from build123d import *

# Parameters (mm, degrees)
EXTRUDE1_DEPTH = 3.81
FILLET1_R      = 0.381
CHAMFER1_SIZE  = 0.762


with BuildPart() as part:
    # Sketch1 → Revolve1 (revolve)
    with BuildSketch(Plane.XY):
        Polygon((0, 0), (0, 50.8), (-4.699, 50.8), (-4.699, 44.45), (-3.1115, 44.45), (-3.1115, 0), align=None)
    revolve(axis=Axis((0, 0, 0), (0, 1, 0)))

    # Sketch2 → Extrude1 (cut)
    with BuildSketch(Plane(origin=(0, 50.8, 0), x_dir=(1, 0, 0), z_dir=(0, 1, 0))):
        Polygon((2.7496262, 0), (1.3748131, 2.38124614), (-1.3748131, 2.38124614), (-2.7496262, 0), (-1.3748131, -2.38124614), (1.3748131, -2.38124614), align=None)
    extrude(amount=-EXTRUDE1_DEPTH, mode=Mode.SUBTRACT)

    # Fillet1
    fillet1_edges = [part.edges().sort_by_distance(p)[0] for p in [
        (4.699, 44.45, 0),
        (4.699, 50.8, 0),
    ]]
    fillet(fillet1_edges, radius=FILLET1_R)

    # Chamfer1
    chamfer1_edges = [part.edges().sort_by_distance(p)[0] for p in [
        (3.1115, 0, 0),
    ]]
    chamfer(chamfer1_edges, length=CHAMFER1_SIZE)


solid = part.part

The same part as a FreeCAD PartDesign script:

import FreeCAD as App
import Part
import Sketcher
Q = App.Units.Quantity


def edges_at(feature, points):
    """Names of the edges that pass closest to the given points."""
    edges = feature.Shape.Edges
    near = lambda p: min(range(len(edges)), key=lambda i: edges[i].distToShape(Part.Vertex(*p))[0])
    return sorted({f"Edge{near(p) + 1}" for p in points})


def add_polygon(sketch, points):
    """Adds a closed chain of lines whose ends are joined by coincident constraints."""
    first, n = sketch.GeometryCount, len(points)
    for a, b in zip(points, points[1:] + points[:1]):
        sketch.addGeometry(Part.LineSegment(App.Vector(*a, 0), App.Vector(*b, 0)), False)
    for i in range(n):
        sketch.addConstraint(Sketcher.Constraint("Coincident", first + i, 2, first + (i + 1) % n, 1))

doc = App.newDocument("Part")
body = doc.addObject("PartDesign::Body", "Body")

sketch1 = body.newObject("Sketcher::SketchObject", "Sketch")
sketch1.AttachmentSupport = (doc.getObject("XY_Plane"), [""])
sketch1.MapMode = "FlatFace"
add_polygon(sketch1, [(0, 0), (0, 50.8), (-4.7, 50.8), (-4.7, 44.5), (-3.1, 44.5), (-3.1, 0)])
sketch1.addConstraint(Sketcher.Constraint("Vertical", 0))
sketch1.addConstraint(Sketcher.Constraint("Horizontal", 1))
sketch1.addConstraint(Sketcher.Constraint("Vertical", 2))
sketch1.addConstraint(Sketcher.Constraint("Horizontal", 3))
sketch1.addConstraint(Sketcher.Constraint("Vertical", 4))
sketch1.addConstraint(Sketcher.Constraint("Horizontal", 5))
sketch1.addConstraint(Sketcher.Constraint("Coincident", 5, 2, -1, 1))
sketch1.addConstraint(Sketcher.Constraint("DistanceY", 0, 1, 0, 2, Q("2 in")))
sketch1.addConstraint(Sketcher.Constraint("DistanceY", 2, 2, 2, 1, Q("0.25 in")))
sketch1.addConstraint(Sketcher.Constraint("DistanceX", 1, 2, 1, 1, Q("0.185 in")))
sketch1.addConstraint(Sketcher.Constraint("DistanceX", 3, 1, 3, 2, Q("0.0625 in")))
revolution = body.newObject("PartDesign::Revolution", "Revolution")
revolution.Profile = sketch1
revolution.ReferenceAxis = (sketch1, ["V_Axis"])
revolution.Angle = 360

sketch2 = body.newObject("Sketcher::SketchObject", "Sketch001")
sketch2.AttachmentSupport = (doc.getObject("XZ_Plane"), [""])
sketch2.MapMode = "FlatFace"
sketch2.AttachmentOffset = App.Placement(App.Vector(0, 0, -2 * 25.4), App.Rotation())
add_polygon(sketch2, [(2.7, 0), (1.4, -2.4), (-1.4, -2.4), (-2.7, 0), (-1.4, 2.4), (1.4, 2.4)])
sketch2.addConstraint(Sketcher.Constraint("Horizontal", 1))
sketch2.addConstraint(Sketcher.Constraint("Horizontal", 4))
sketch2.addConstraint(Sketcher.Constraint("Symmetric", 0, 2, 3, 2, -1, 1))
sketch2.addConstraint(Sketcher.Constraint("Symmetric", 2, 2, 5, 2, -1, 1))
sketch2.addConstraint(Sketcher.Constraint("PointOnObject", 2, 2, -1))
sketch2.addConstraint(Sketcher.Constraint("Parallel", 2, 5))
sketch2.addConstraint(Sketcher.Constraint("Vertical", 1, 2, 3, 2))
sketch2.addConstraint(Sketcher.Constraint("Angle", 0, Q("-120 deg")))
sketch2.addConstraint(Sketcher.Constraint("DistanceY", 0, 2, -1, 1, Q("0.0937498 in")))
sketch2.addConstraint(Sketcher.Constraint("DistanceX", 1, 2, 1, 1, Q("2.749626 mm")))
pocket1 = body.newObject("PartDesign::Pocket", "Pocket")
pocket1.Profile = sketch2
pocket1.Length = Q("0.15 in")
pocket1.Reversed = True
doc.recompute()

fillet = body.newObject("PartDesign::Fillet", "Fillet")
fillet.Base = (pocket1, edges_at(pocket1, [(4.699, 44.45, 0), (4.699, 50.8, 0)]))
fillet.Radius = Q("0.015 in")
doc.recompute()

chamfer = body.newObject("PartDesign::Chamfer", "Chamfer")
chamfer.Base = (fillet, edges_at(fillet, [(3.111, 0, 0)]))
chamfer.Size = Q("0.03 in")

doc.recompute()
